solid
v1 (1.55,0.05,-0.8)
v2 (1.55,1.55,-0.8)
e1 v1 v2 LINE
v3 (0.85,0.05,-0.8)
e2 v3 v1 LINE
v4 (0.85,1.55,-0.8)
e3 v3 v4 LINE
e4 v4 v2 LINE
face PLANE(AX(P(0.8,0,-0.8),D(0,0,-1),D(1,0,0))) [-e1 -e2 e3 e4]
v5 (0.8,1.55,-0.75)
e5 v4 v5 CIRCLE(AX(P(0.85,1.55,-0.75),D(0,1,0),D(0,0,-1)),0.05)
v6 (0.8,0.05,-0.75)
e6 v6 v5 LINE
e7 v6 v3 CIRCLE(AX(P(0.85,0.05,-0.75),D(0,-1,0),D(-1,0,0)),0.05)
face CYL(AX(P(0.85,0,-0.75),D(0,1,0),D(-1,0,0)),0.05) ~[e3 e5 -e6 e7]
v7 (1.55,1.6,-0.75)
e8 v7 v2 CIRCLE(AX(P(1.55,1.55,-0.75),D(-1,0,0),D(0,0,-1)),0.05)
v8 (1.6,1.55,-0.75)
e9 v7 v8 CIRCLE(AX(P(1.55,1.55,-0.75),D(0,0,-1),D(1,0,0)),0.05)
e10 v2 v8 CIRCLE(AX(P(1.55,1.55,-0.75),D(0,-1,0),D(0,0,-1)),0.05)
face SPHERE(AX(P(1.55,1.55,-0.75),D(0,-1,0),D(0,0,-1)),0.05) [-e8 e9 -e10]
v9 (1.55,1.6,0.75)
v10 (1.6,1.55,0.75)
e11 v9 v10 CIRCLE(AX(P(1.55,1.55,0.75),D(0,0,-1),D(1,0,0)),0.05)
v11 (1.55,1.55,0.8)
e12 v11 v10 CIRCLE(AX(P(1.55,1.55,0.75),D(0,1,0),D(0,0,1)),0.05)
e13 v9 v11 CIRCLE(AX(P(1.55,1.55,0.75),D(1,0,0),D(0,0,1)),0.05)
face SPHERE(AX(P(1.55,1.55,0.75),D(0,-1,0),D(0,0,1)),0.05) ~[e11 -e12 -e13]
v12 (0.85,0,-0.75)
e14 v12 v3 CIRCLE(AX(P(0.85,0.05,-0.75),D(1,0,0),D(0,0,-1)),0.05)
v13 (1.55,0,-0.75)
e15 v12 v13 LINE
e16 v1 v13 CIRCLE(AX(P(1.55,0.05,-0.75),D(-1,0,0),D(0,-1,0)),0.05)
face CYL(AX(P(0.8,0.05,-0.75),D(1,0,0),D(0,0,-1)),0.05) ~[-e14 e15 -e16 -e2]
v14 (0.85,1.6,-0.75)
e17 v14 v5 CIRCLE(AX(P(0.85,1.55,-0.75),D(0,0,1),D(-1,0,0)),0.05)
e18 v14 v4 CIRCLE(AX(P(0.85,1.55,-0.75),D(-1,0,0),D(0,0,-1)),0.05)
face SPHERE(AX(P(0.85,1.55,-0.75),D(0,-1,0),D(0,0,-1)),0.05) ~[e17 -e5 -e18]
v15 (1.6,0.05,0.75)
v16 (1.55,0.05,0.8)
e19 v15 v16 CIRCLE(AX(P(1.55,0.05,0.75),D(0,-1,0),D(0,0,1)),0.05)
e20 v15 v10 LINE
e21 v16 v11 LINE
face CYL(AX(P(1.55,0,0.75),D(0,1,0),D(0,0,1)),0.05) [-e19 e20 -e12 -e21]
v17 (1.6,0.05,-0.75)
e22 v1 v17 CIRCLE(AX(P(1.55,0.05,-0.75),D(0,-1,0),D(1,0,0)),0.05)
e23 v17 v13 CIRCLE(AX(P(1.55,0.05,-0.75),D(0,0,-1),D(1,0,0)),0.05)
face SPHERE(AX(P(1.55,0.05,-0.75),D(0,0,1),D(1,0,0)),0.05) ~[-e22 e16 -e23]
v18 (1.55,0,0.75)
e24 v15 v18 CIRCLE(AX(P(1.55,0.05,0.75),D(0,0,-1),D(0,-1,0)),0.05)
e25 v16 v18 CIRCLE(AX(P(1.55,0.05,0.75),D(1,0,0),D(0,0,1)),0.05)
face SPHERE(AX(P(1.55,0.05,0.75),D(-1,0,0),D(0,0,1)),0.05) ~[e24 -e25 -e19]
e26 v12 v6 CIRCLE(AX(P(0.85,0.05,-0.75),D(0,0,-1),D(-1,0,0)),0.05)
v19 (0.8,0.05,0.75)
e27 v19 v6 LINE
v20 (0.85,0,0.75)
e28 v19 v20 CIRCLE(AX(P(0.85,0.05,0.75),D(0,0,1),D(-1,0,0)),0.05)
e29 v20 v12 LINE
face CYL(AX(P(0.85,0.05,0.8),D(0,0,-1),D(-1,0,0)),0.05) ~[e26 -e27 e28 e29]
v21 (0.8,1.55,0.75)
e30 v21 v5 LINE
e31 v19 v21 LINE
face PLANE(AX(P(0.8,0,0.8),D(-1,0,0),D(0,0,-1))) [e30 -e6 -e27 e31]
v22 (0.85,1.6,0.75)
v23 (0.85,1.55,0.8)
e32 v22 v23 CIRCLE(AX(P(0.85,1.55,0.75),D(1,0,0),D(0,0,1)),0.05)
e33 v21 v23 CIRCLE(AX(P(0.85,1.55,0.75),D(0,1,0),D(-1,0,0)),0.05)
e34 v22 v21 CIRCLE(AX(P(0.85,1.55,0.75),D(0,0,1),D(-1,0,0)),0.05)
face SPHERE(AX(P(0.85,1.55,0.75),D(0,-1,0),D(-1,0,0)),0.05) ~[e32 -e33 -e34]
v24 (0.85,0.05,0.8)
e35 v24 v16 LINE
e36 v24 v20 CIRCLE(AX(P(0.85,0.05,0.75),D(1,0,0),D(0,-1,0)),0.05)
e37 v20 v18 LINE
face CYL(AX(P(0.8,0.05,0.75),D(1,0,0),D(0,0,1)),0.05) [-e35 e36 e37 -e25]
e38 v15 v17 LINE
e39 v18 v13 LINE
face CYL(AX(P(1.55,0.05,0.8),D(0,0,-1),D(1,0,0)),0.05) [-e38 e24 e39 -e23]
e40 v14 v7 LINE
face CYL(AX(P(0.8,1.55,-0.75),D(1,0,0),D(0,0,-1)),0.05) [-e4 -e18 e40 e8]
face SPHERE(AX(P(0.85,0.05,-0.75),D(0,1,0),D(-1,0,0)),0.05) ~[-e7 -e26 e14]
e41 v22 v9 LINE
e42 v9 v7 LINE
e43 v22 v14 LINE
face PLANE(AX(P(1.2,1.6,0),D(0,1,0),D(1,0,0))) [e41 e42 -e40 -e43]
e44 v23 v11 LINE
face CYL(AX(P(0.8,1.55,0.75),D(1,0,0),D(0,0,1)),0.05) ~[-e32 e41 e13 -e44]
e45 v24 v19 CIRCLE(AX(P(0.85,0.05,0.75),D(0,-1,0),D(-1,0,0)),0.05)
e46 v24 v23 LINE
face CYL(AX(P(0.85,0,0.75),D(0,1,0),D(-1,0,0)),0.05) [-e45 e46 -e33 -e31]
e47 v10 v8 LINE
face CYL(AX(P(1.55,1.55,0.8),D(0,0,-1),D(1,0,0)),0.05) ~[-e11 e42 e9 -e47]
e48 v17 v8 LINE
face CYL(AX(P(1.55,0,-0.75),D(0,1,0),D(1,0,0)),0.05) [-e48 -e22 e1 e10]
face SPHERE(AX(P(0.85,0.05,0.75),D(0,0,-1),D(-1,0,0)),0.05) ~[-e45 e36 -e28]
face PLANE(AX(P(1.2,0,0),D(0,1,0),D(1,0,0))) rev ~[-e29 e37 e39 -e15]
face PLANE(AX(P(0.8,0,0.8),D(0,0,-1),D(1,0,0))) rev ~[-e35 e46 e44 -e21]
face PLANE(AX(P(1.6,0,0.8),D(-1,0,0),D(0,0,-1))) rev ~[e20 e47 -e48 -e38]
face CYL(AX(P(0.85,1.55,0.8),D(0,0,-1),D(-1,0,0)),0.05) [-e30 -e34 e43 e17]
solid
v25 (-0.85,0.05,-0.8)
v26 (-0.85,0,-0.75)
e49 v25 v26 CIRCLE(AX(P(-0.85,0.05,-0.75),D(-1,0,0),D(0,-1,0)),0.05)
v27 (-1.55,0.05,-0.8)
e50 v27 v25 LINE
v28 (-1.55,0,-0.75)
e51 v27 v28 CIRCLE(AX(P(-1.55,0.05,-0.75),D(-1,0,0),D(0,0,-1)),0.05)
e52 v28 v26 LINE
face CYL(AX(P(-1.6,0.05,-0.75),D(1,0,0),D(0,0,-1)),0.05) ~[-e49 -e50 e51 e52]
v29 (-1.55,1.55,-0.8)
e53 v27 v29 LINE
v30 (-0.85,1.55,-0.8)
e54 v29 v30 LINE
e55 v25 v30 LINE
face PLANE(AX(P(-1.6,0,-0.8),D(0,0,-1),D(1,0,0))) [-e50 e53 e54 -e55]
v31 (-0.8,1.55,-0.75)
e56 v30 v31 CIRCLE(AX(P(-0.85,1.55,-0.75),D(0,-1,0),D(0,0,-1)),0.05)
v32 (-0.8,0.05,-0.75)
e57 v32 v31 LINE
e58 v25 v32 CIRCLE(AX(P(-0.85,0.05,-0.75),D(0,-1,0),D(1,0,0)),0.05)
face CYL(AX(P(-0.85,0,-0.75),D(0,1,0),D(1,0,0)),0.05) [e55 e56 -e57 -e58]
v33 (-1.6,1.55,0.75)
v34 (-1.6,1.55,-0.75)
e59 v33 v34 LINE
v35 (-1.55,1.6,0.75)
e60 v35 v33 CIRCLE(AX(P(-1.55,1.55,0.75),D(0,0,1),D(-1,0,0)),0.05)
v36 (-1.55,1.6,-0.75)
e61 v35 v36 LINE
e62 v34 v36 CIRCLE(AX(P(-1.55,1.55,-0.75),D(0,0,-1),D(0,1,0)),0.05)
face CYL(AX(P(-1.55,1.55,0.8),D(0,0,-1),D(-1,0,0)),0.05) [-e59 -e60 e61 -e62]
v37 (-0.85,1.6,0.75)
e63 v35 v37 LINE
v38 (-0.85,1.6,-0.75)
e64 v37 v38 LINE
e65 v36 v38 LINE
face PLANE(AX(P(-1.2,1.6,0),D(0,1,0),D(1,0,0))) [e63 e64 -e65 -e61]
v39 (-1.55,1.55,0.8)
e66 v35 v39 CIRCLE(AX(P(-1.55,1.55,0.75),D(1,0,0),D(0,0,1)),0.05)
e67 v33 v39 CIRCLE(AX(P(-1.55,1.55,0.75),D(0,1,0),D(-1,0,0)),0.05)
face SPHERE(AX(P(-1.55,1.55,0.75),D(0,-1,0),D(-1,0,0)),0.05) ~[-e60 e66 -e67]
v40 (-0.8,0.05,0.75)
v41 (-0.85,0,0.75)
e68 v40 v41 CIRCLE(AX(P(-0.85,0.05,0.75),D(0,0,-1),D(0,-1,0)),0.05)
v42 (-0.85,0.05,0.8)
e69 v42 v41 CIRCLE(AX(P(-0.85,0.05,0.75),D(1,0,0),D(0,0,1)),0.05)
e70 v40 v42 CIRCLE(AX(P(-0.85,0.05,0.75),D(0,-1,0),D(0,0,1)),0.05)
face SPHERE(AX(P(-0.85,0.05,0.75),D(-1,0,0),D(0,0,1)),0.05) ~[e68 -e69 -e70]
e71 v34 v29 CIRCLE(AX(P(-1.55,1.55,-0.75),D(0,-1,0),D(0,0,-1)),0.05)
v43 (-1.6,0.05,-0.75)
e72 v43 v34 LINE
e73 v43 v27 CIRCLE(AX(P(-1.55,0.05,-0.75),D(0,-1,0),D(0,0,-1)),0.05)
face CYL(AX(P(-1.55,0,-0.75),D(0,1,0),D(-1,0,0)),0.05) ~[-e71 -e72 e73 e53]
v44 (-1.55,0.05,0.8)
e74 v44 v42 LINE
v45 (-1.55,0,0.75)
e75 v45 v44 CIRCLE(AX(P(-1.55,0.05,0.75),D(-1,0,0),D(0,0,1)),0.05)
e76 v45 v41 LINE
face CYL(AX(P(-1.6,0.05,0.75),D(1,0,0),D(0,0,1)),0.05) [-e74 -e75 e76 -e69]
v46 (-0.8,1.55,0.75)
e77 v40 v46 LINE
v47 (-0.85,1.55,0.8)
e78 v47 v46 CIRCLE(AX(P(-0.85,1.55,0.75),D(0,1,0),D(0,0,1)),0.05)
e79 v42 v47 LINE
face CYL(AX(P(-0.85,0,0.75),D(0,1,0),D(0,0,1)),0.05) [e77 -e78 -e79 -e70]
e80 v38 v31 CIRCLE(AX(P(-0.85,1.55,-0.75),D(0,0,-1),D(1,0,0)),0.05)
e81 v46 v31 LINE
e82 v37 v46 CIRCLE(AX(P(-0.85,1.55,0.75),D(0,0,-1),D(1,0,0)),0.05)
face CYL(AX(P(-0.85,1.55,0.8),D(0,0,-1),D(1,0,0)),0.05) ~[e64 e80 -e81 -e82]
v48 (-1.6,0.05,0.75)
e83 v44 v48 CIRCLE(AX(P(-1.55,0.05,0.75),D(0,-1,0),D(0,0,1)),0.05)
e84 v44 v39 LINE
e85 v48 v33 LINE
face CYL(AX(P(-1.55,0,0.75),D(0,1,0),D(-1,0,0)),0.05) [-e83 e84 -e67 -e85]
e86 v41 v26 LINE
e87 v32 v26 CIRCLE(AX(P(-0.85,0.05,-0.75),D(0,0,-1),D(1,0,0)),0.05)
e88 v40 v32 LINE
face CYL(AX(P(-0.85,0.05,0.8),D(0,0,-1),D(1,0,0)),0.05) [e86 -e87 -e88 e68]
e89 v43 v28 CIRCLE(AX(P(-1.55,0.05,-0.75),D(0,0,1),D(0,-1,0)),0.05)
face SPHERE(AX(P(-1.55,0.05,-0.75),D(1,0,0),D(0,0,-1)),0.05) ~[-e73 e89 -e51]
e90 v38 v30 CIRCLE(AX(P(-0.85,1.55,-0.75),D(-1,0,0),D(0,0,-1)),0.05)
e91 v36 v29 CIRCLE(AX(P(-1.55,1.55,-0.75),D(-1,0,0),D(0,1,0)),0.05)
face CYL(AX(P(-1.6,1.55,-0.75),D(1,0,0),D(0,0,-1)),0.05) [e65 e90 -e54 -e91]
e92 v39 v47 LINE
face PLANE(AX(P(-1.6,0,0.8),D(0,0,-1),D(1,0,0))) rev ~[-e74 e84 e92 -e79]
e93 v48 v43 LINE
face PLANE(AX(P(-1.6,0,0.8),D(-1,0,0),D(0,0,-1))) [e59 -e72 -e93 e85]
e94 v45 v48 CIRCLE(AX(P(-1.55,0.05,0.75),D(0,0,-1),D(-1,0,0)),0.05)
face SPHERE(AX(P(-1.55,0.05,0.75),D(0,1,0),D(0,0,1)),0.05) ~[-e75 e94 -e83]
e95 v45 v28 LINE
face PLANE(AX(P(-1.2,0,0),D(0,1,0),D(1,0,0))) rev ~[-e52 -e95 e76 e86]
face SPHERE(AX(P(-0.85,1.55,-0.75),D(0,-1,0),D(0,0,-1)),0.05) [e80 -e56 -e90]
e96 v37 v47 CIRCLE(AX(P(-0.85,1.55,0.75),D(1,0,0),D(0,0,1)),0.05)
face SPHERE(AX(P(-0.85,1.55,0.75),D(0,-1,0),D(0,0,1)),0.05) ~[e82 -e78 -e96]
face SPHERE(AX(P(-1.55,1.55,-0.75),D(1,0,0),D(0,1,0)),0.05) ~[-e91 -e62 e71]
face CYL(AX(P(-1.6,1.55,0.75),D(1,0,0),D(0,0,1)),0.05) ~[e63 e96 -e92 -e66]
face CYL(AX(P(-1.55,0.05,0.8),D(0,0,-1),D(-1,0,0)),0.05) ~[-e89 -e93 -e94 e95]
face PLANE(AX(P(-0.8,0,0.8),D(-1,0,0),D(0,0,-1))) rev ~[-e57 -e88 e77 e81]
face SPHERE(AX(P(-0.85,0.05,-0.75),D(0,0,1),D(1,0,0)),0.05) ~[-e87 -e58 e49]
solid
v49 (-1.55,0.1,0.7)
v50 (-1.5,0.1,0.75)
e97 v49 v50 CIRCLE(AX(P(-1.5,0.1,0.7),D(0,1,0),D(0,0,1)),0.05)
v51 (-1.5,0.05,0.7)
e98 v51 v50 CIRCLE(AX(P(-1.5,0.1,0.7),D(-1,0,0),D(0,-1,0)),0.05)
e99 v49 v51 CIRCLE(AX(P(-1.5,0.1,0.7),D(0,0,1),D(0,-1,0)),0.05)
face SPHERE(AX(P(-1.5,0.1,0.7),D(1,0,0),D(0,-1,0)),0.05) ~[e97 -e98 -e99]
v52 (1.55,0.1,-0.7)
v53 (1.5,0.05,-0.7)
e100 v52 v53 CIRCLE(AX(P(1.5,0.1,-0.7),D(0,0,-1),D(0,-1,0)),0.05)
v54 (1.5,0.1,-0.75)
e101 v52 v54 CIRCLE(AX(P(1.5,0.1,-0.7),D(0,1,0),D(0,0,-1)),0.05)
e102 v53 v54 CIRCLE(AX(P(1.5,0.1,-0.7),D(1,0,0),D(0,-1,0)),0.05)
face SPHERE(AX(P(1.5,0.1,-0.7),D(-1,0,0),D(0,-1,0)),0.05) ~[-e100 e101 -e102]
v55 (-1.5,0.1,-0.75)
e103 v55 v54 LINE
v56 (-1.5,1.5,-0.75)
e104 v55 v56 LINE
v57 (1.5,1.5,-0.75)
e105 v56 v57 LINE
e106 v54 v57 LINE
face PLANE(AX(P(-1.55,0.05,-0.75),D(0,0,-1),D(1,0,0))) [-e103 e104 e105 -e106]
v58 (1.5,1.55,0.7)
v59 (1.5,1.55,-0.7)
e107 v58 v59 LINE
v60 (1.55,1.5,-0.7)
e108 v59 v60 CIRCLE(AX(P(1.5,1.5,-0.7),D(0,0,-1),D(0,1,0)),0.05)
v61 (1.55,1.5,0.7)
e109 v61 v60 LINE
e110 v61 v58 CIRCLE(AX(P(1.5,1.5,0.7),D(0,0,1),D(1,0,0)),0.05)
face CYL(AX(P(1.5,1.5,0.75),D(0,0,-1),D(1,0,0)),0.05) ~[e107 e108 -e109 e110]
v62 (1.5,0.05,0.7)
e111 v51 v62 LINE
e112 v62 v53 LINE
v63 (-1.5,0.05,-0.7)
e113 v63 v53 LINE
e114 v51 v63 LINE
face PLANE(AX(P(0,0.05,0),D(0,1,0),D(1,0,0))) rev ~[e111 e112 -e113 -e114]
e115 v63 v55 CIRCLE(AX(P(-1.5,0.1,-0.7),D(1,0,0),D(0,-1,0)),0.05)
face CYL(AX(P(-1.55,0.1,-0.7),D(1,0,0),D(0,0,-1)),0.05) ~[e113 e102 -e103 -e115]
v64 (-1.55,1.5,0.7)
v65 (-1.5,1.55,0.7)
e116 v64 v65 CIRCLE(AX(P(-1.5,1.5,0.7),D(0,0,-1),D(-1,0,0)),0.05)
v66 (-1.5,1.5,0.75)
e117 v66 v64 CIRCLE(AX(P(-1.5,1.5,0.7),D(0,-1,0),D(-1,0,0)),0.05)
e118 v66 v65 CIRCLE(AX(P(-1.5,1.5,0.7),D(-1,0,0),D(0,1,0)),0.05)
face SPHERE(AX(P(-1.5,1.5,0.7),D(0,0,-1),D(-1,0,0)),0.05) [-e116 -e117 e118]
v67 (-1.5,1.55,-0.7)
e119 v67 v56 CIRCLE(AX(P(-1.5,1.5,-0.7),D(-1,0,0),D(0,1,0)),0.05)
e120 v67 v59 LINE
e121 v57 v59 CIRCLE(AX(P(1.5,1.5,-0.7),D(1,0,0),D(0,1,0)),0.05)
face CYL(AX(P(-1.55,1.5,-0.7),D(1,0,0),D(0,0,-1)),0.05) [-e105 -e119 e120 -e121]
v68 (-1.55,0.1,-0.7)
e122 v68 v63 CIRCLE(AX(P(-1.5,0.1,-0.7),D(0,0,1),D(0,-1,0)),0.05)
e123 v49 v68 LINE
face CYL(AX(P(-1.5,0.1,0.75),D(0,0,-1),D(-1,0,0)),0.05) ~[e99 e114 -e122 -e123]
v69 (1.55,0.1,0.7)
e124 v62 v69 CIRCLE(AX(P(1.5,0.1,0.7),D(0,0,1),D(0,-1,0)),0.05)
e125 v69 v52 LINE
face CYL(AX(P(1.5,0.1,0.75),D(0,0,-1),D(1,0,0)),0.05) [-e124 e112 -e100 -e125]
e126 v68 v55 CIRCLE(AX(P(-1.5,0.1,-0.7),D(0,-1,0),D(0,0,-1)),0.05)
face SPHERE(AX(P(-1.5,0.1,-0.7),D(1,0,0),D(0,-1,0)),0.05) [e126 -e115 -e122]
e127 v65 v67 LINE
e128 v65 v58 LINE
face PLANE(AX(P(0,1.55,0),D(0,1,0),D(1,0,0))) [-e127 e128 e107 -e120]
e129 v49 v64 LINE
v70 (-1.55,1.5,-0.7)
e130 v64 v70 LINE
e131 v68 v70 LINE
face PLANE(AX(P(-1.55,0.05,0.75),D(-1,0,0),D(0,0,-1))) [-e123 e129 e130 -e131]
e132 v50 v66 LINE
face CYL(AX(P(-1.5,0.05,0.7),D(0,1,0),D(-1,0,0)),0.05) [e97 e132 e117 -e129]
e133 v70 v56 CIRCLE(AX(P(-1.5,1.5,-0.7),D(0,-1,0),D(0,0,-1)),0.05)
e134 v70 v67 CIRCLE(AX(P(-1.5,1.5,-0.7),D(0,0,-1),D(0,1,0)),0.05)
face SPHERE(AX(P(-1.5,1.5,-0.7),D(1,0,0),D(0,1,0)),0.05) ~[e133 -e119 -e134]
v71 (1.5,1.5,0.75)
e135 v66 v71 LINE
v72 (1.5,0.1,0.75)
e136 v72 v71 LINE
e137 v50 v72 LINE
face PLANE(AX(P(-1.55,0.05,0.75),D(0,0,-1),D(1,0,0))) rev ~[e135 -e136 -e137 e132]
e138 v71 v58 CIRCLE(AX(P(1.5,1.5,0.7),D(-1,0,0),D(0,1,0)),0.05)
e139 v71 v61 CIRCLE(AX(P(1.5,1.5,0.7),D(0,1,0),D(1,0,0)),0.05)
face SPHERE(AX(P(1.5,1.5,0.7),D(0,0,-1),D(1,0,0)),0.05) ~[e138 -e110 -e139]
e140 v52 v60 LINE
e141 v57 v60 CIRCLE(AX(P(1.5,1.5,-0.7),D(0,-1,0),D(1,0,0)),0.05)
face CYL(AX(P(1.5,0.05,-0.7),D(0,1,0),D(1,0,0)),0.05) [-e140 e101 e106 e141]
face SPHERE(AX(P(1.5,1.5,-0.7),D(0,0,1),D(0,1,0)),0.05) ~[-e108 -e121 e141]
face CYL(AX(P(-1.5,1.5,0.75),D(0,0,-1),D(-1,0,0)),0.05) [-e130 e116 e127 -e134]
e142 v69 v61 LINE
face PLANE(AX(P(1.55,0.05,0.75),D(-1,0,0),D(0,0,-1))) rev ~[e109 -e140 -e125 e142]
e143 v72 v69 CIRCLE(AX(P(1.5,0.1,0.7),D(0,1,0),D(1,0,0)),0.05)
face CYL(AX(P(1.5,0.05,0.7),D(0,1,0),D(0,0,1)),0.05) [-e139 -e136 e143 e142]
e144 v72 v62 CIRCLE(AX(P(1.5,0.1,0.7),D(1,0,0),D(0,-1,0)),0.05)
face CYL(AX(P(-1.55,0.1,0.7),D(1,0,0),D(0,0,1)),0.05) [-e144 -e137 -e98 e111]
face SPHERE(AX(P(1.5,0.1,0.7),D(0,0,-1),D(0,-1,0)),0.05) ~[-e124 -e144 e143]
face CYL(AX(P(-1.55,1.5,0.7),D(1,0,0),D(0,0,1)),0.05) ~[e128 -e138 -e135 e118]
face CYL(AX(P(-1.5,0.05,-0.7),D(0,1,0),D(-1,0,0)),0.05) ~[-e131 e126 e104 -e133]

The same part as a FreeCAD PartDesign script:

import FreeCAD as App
import Part
import Sketcher

V = App.Vector


def add_polygon(sketch, points):
    """Adds a closed chain of lines whose ends are joined by coincident constraints."""
    first, n = sketch.GeometryCount, len(points)
    for a, b in zip(points, points[1:] + points[:1]):
        sketch.addGeometry(Part.LineSegment(App.Vector(*a, 0), App.Vector(*b, 0)), False)
    for i in range(n):
        sketch.addConstraint(Sketcher.Constraint("Coincident", first + i, 2, first + (i + 1) % n, 1))

doc = App.newDocument("Part")
params = doc.addObject("Spreadsheet::Sheet", "Params")
for row, (alias, value) in enumerate([
    ("sketch1_width", "3.1 mm"),
    ("sketch1_height", "1.5 mm"),
    ("pad1_length", "1.5 mm"),
    ("fillet_radius", "0.05 mm"),
    ("sketch2_width", "0.8 mm"),
    ("sketch2_height", "1.6 mm"),
    ("pad2_length", "1.6 mm"),
    ("fillet2_radius", "0.05 mm"),
    ("sketch3_width", "0.8 mm"),
    ("sketch3_height", "1.6 mm"),
    ("pad3_length", "1.6 mm"),
    ("fillet3_radius", "0.05 mm"),
], start=1):
    params.set(f"A{row}", alias)
    params.set(f"B{row}", "=" + value)
    params.setAlias(f"B{row}", alias)

body = doc.addObject("PartDesign::Body", "Body")

sketch1 = body.newObject("Sketcher::SketchObject", "Sketch")
sketch1.AttachmentSupport = (doc.getObject("XZ_Plane"), [""])
sketch1.MapMode = "FlatFace"
sketch1.AttachmentOffset = App.Placement(V(0, 0, -0.05), App.Rotation())
add_polygon(sketch1, [(-1.6, -0.8), (-1.6, 0.8), (1.6, 0.8), (1.6, -0.8)])
sketch1.addConstraint(Sketcher.Constraint("Vertical", 0))
sketch1.addConstraint(Sketcher.Constraint("Horizontal", 1))
sketch1.addConstraint(Sketcher.Constraint("Vertical", 2))
sketch1.addConstraint(Sketcher.Constraint("Horizontal", 3))
sketch1.addConstraint(Sketcher.Constraint("Symmetric", 0, 2, 2, 2, -1, 1))
sketch1.addConstraint(Sketcher.Constraint("DistanceX", 1, 1, 1, 2, 3.1))
sketch1.addConstraint(Sketcher.Constraint("DistanceY", 0, 1, 0, 2, 1.5))
sketch1.setExpression("Constraints[9]", "Params.sketch1_width")
sketch1.setExpression("Constraints[10]", "Params.sketch1_height")
pad1 = body.newObject("PartDesign::Pad", "Pad")
pad1.Profile = sketch1
pad1.setExpression("Length", "Params.pad1_length")
pad1.Reversed = True
doc.recompute()

fillet = body.newObject("PartDesign::Fillet", "Fillet")
fillet.Base = (pad1, ["Edge1"])
fillet.UseAllEdges = True
fillet.setExpression("Radius", "Params.fillet_radius")
body2 = doc.addObject("PartDesign::Body", "Body001")

sketch2 = body2.newObject("Sketcher::SketchObject", "Sketch001")
sketch2.AttachmentSupport = (doc.getObject("XZ_Plane001"), [""])
sketch2.MapMode = "FlatFace"
add_polygon(sketch2, [(-1.6, -0.8), (-1.6, 0.8), (-0.8, 0.8), (-0.8, -0.8)])
sketch2.addConstraint(Sketcher.Constraint("Vertical", 0))
sketch2.addConstraint(Sketcher.Constraint("Horizontal", 1))
sketch2.addConstraint(Sketcher.Constraint("Vertical", 2))
sketch2.addConstraint(Sketcher.Constraint("Horizontal", 3))
sketch2.addConstraint(Sketcher.Constraint("DistanceX", 1, 1, 1, 2, 0.8))
sketch2.addConstraint(Sketcher.Constraint("DistanceY", 0, 1, 0, 2, 1.6))
sketch2.addConstraint(Sketcher.Constraint("DistanceX", 0, 2, -1, 1, 1.6))
sketch2.addConstraint(Sketcher.Constraint("DistanceY", -1, 1, 0, 2, 0.8))
sketch2.setExpression("Constraints[8]", "Params.sketch2_width")
sketch2.setExpression("Constraints[9]", "Params.sketch2_height")
pad2 = body2.newObject("PartDesign::Pad", "Pad001")
pad2.Profile = sketch2
pad2.setExpression("Length", "Params.pad2_length")
pad2.Reversed = True
doc.recompute()

fillet2 = body2.newObject("PartDesign::Fillet", "Fillet001")
fillet2.Base = (pad2, ["Edge1"])
fillet2.UseAllEdges = True
fillet2.setExpression("Radius", "Params.fillet2_radius")
body3 = doc.addObject("PartDesign::Body", "Body002")

sketch3 = body3.newObject("Sketcher::SketchObject", "Sketch002")
sketch3.AttachmentSupport = (doc.getObject("XZ_Plane002"), [""])
sketch3.MapMode = "FlatFace"
add_polygon(sketch3, [(0.8, -0.8), (0.8, 0.8), (1.6, 0.8), (1.6, -0.8)])
sketch3.addConstraint(Sketcher.Constraint("Vertical", 0))
sketch3.addConstraint(Sketcher.Constraint("Horizontal", 1))
sketch3.addConstraint(Sketcher.Constraint("Vertical", 2))
sketch3.addConstraint(Sketcher.Constraint("Horizontal", 3))
sketch3.addConstraint(Sketcher.Constraint("DistanceX", 1, 1, 1, 2, 0.8))
sketch3.addConstraint(Sketcher.Constraint("DistanceY", 0, 1, 0, 2, 1.6))
sketch3.addConstraint(Sketcher.Constraint("DistanceX", -1, 1, 0, 2, 0.8))
sketch3.addConstraint(Sketcher.Constraint("DistanceY", -1, 1, 0, 2, 0.8))
sketch3.setExpression("Constraints[8]", "Params.sketch3_width")
sketch3.setExpression("Constraints[9]", "Params.sketch3_height")
pad3 = body3.newObject("PartDesign::Pad", "Pad002")
pad3.Profile = sketch3
pad3.setExpression("Length", "Params.pad3_length")
pad3.Reversed = True
doc.recompute()

fillet3 = body3.newObject("PartDesign::Fillet", "Fillet002")
fillet3.Base = (pad3, ["Edge1"])
fillet3.UseAllEdges = True
fillet3.setExpression("Radius", "Params.fillet3_radius")

doc.recompute()
